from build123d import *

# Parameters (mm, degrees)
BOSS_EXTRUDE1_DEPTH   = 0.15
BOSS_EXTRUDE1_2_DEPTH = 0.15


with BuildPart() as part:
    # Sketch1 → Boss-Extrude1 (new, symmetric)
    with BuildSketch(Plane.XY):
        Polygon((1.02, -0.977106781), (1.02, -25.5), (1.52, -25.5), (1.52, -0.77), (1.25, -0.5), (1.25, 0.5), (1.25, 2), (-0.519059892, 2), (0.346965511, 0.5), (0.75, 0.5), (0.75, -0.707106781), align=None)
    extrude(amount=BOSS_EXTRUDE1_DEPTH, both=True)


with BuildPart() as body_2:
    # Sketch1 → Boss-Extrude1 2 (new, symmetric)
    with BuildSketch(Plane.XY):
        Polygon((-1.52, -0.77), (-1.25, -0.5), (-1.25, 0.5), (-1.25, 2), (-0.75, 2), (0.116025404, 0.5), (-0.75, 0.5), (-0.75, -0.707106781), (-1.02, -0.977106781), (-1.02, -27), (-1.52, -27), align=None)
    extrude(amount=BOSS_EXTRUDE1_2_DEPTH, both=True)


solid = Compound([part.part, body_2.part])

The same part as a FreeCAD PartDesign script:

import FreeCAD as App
import Part
import Sketcher
from FreeCAD import Vector
Q = App.Units.Quantity

doc = App.newDocument("Part")
params = doc.addObject("Spreadsheet::Sheet", "Params")
for row, (alias, value) in enumerate([
    ("sketch1_width", "0.5 mm"),
    ("sketch1_height", "2.5 mm"),
    ("sketch1_height2", "24.73 mm"),
    ("pad1_length", "0.3 mm"),
    ("sketch2_width", "0.5 mm"),
    ("sketch2_height", "2.5 mm"),
    ("sketch2_height2", "26.23 mm"),
    ("pad2_length", "0.3 mm"),
], start=1):
    params.set(f"A{row}", alias)
    params.set(f"B{row}", "=" + value)
    params.setAlias(f"B{row}", alias)

body = doc.addObject("PartDesign::Body", "Body")

# Sketch on XY plane
sketch1 = body.newObject("Sketcher::SketchObject", "Sketch")
sketch1.AttachmentSupport = (doc.getObject("XY_Plane"), [""])
sketch1.MapMode = "FlatFace"
sketch1.addGeometry(Part.LineSegment(Vector(1.02, -0.98, 0), Vector(1.02, -25.5, 0)), False)
sketch1.addGeometry(Part.LineSegment(Vector(1.02, -25.5, 0), Vector(1.52, -25.5, 0)), False)
sketch1.addGeometry(Part.LineSegment(Vector(1.52, -25.5, 0), Vector(1.52, -0.77, 0)), False)
sketch1.addGeometry(Part.LineSegment(Vector(1.52, -0.77, 0), Vector(1.25, -0.5, 0)), False)
sketch1.addGeometry(Part.LineSegment(Vector(1.25, -0.5, 0), Vector(1.25, 2, 0)), False)
sketch1.addGeometry(Part.LineSegment(Vector(1.25, 2, 0), Vector(-0.52, 2, 0)), False)
sketch1.addGeometry(Part.LineSegment(Vector(-0.52, 2, 0), Vector(0.35, 0.5, 0)), False)
sketch1.addGeometry(Part.LineSegment(Vector(0.35, 0.5, 0), Vector(0.75, 0.5, 0)), False)
sketch1.addGeometry(Part.LineSegment(Vector(0.75, 0.5, 0), Vector(0.75, -0.71, 0)), False)
sketch1.addGeometry(Part.LineSegment(Vector(0.75, -0.71, 0), Vector(1.02, -0.98, 0)), False)
sketch1.addConstraint(Sketcher.Constraint("Coincident", 0, 2, 1, 1))
sketch1.addConstraint(Sketcher.Constraint("Coincident", 1, 2, 2, 1))
sketch1.addConstraint(Sketcher.Constraint("Coincident", 2, 2, 3, 1))
sketch1.addConstraint(Sketcher.Constraint("Coincident", 3, 2, 4, 1))
sketch1.addConstraint(Sketcher.Constraint("Coincident", 4, 2, 5, 1))
sketch1.addConstraint(Sketcher.Constraint("Coincident", 5, 2, 6, 1))
sketch1.addConstraint(Sketcher.Constraint("Coincident", 6, 2, 7, 1))
sketch1.addConstraint(Sketcher.Constraint("Coincident", 7, 2, 8, 1))
sketch1.addConstraint(Sketcher.Constraint("Coincident", 8, 2, 9, 1))
sketch1.addConstraint(Sketcher.Constraint("Coincident", 9, 2, 0, 1))
sketch1.addConstraint(Sketcher.Constraint("Vertical", 0))
sketch1.addConstraint(Sketcher.Constraint("Horizontal", 1))
sketch1.addConstraint(Sketcher.Constraint("Vertical", 2))
sketch1.addConstraint(Sketcher.Constraint("Vertical", 4))
sketch1.addConstraint(Sketcher.Constraint("Horizontal", 5))
sketch1.addConstraint(Sketcher.Constraint("Horizontal", 7))
sketch1.addConstraint(Sketcher.Constraint("Vertical", 8))
sketch1.addConstraint(Sketcher.Constraint("Parallel", 3, 9))
sketch1.addConstraint(Sketcher.Constraint("Equal", 3, 9))
sketch1.addConstraint(Sketcher.Constraint("Angle", 3, Q("135 deg")))
sketch1.addConstraint(Sketcher.Constraint("Angle", 6, Q("-60 deg")))
sketch1.addConstraint(Sketcher.Constraint("DistanceX", 1, 1, 1, 2, Q("0.5 mm")))
sketch1.addConstraint(Sketcher.Constraint("DistanceY", 4, 1, 4, 2, Q("2.5 mm")))
sketch1.addConstraint(Sketcher.Constraint("DistanceY", -1, 1, 4, 2, Q("2 mm")))
sketch1.addConstraint(Sketcher.Constraint("DistanceY", 0, 2, 3, 2, Q("25 mm")))
sketch1.addConstraint(Sketcher.Constraint("DistanceY", 3, 2, 6, 2, Q("1 mm")))
sketch1.addConstraint(Sketcher.Constraint("DistanceY", 2, 1, 2, 2, Q("24.73 mm")))
sketch1.addConstraint(Sketcher.Constraint("DistanceX", -1, 1, 0, 2, Q("1.02 mm")))
sketch1.addConstraint(Sketcher.Constraint("DistanceX", 5, 2, 5, 1, Q("1.76906 mm")))
sketch1.addConstraint(Sketcher.Constraint("DistanceY", 0, 2, 0, 1, Q("24.522893 mm")))
sketch1.setExpression("Constraints[21]", "Params.sketch1_width")
sketch1.setExpression("Constraints[22]", "Params.sketch1_height")
sketch1.setExpression("Constraints[26]", "Params.sketch1_height2")
pad1 = body.newObject("PartDesign::Pad", "Pad")
pad1.Profile = sketch1
pad1.setExpression("Length", "Params.pad1_length")
pad1.Midplane = True
body2 = doc.addObject("PartDesign::Body", "Body001")

# Sketch on XY plane
sketch2 = body2.newObject("Sketcher::SketchObject", "Sketch001")
sketch2.AttachmentSupport = (doc.getObject("XY_Plane001"), [""])
sketch2.MapMode = "FlatFace"
sketch2.addGeometry(Part.LineSegment(Vector(-1.25, -0.5, 0), Vector(-1.52, -0.77, 0)), False)
sketch2.addGeometry(Part.LineSegment(Vector(-1.52, -0.77, 0), Vector(-1.52, -27, 0)), False)
sketch2.addGeometry(Part.LineSegment(Vector(-1.52, -27, 0), Vector(-1.02, -27, 0)), False)
sketch2.addGeometry(Part.LineSegment(Vector(-1.02, -27, 0), Vector(-1.02, -0.98, 0)), False)
sketch2.addGeometry(Part.LineSegment(Vector(-1.02, -0.98, 0), Vector(-0.75, -0.71, 0)), False)
sketch2.addGeometry(Part.LineSegment(Vector(-0.75, -0.71, 0), Vector(-0.75, 0.5, 0)), False)
sketch2.addGeometry(Part.LineSegment(Vector(-0.75, 0.5, 0), Vector(0.12, 0.5, 0)), False)
sketch2.addGeometry(Part.LineSegment(Vector(0.12, 0.5, 0), Vector(-0.75, 2, 0)), False)
sketch2.addGeometry(Part.LineSegment(Vector(-0.75, 2, 0), Vector(-1.25, 2, 0)), False)
sketch2.addGeometry(Part.LineSegment(Vector(-1.25, 2, 0), Vector(-1.25, -0.5, 0)), False)
sketch2.addConstraint(Sketcher.Constraint("Coincident", 0, 2, 1, 1))
sketch2.addConstraint(Sketcher.Constraint("Coincident", 1, 2, 2, 1))
sketch2.addConstraint(Sketcher.Constraint("Coincident", 2, 2, 3, 1))
sketch2.addConstraint(Sketcher.Constraint("Coincident", 3, 2, 4, 1))
sketch2.addConstraint(Sketcher.Constraint("Coincident", 4, 2, 5, 1))
sketch2.addConstraint(Sketcher.Constraint("Coincident", 5, 2, 6, 1))
sketch2.addConstraint(Sketcher.Constraint("Coincident", 6, 2, 7, 1))
sketch2.addConstraint(Sketcher.Constraint("Coincident", 7, 2, 8, 1))
sketch2.addConstraint(Sketcher.Constraint("Coincident", 8, 2, 9, 1))
sketch2.addConstraint(Sketcher.Constraint("Coincident", 9, 2, 0, 1))
sketch2.addConstraint(Sketcher.Constraint("Vertical", 1))
sketch2.addConstraint(Sketcher.Constraint("Horizontal", 2))
sketch2.addConstraint(Sketcher.Constraint("Vertical", 3))
sketch2.addConstraint(Sketcher.Constraint("Vertical", 5))
sketch2.addConstraint(Sketcher.Constraint("Horizontal", 6))
sketch2.addConstraint(Sketcher.Constraint("Horizontal", 8))
sketch2.addConstraint(Sketcher.Constraint("Vertical", 9))
sketch2.addConstraint(Sketcher.Constraint("Parallel", 0, 4))
sketch2.addConstraint(Sketcher.Constraint("Vertical", 5, 2, 7, 2))
sketch2.addConstraint(Sketcher.Constraint("Equal", 2, 8))
sketch2.addConstraint(Sketcher.Constraint("Angle", 0, Q("-135 deg")))
sketch2.addConstraint(Sketcher.Constraint("Angle", 7, Q("120 deg")))
sketch2.addConstraint(Sketcher.Constraint("DistanceX", 2, 1, 2, 2, Q("0.5 mm")))
sketch2.addConstraint(Sketcher.Constraint("DistanceY", 9, 2, 9, 1, Q("2.5 mm")))
sketch2.addConstraint(Sketcher.Constraint("DistanceY", 1, 2, -1, 1, Q("27 mm")))
sketch2.addConstraint(Sketcher.Constraint("DistanceY", -1, 1, 7, 2, Q("2 mm")))
sketch2.addConstraint(Sketcher.Constraint("DistanceY", 9, 2, 5, 2, Q("1 mm")))
sketch2.addConstraint(Sketcher.Constraint("DistanceY", 1, 2, 1, 1, Q("26.23 mm")))
sketch2.addConstraint(Sketcher.Constraint("DistanceX", 0, 2, -1, 1, Q("1.52 mm")))
sketch2.addConstraint(Sketcher.Constraint("DistanceY", 3, 1, 3, 2, Q("26.022893 mm")))
sketch2.setExpression("Constraints[22]", "Params.sketch2_width")
sketch2.setExpression("Constraints[23]", "Params.sketch2_height")
sketch2.setExpression("Constraints[27]", "Params.sketch2_height2")
pad2 = body2.newObject("PartDesign::Pad", "Pad001")
pad2.Profile = sketch2
pad2.setExpression("Length", "Params.pad2_length")
pad2.Midplane = True

doc.recompute()
